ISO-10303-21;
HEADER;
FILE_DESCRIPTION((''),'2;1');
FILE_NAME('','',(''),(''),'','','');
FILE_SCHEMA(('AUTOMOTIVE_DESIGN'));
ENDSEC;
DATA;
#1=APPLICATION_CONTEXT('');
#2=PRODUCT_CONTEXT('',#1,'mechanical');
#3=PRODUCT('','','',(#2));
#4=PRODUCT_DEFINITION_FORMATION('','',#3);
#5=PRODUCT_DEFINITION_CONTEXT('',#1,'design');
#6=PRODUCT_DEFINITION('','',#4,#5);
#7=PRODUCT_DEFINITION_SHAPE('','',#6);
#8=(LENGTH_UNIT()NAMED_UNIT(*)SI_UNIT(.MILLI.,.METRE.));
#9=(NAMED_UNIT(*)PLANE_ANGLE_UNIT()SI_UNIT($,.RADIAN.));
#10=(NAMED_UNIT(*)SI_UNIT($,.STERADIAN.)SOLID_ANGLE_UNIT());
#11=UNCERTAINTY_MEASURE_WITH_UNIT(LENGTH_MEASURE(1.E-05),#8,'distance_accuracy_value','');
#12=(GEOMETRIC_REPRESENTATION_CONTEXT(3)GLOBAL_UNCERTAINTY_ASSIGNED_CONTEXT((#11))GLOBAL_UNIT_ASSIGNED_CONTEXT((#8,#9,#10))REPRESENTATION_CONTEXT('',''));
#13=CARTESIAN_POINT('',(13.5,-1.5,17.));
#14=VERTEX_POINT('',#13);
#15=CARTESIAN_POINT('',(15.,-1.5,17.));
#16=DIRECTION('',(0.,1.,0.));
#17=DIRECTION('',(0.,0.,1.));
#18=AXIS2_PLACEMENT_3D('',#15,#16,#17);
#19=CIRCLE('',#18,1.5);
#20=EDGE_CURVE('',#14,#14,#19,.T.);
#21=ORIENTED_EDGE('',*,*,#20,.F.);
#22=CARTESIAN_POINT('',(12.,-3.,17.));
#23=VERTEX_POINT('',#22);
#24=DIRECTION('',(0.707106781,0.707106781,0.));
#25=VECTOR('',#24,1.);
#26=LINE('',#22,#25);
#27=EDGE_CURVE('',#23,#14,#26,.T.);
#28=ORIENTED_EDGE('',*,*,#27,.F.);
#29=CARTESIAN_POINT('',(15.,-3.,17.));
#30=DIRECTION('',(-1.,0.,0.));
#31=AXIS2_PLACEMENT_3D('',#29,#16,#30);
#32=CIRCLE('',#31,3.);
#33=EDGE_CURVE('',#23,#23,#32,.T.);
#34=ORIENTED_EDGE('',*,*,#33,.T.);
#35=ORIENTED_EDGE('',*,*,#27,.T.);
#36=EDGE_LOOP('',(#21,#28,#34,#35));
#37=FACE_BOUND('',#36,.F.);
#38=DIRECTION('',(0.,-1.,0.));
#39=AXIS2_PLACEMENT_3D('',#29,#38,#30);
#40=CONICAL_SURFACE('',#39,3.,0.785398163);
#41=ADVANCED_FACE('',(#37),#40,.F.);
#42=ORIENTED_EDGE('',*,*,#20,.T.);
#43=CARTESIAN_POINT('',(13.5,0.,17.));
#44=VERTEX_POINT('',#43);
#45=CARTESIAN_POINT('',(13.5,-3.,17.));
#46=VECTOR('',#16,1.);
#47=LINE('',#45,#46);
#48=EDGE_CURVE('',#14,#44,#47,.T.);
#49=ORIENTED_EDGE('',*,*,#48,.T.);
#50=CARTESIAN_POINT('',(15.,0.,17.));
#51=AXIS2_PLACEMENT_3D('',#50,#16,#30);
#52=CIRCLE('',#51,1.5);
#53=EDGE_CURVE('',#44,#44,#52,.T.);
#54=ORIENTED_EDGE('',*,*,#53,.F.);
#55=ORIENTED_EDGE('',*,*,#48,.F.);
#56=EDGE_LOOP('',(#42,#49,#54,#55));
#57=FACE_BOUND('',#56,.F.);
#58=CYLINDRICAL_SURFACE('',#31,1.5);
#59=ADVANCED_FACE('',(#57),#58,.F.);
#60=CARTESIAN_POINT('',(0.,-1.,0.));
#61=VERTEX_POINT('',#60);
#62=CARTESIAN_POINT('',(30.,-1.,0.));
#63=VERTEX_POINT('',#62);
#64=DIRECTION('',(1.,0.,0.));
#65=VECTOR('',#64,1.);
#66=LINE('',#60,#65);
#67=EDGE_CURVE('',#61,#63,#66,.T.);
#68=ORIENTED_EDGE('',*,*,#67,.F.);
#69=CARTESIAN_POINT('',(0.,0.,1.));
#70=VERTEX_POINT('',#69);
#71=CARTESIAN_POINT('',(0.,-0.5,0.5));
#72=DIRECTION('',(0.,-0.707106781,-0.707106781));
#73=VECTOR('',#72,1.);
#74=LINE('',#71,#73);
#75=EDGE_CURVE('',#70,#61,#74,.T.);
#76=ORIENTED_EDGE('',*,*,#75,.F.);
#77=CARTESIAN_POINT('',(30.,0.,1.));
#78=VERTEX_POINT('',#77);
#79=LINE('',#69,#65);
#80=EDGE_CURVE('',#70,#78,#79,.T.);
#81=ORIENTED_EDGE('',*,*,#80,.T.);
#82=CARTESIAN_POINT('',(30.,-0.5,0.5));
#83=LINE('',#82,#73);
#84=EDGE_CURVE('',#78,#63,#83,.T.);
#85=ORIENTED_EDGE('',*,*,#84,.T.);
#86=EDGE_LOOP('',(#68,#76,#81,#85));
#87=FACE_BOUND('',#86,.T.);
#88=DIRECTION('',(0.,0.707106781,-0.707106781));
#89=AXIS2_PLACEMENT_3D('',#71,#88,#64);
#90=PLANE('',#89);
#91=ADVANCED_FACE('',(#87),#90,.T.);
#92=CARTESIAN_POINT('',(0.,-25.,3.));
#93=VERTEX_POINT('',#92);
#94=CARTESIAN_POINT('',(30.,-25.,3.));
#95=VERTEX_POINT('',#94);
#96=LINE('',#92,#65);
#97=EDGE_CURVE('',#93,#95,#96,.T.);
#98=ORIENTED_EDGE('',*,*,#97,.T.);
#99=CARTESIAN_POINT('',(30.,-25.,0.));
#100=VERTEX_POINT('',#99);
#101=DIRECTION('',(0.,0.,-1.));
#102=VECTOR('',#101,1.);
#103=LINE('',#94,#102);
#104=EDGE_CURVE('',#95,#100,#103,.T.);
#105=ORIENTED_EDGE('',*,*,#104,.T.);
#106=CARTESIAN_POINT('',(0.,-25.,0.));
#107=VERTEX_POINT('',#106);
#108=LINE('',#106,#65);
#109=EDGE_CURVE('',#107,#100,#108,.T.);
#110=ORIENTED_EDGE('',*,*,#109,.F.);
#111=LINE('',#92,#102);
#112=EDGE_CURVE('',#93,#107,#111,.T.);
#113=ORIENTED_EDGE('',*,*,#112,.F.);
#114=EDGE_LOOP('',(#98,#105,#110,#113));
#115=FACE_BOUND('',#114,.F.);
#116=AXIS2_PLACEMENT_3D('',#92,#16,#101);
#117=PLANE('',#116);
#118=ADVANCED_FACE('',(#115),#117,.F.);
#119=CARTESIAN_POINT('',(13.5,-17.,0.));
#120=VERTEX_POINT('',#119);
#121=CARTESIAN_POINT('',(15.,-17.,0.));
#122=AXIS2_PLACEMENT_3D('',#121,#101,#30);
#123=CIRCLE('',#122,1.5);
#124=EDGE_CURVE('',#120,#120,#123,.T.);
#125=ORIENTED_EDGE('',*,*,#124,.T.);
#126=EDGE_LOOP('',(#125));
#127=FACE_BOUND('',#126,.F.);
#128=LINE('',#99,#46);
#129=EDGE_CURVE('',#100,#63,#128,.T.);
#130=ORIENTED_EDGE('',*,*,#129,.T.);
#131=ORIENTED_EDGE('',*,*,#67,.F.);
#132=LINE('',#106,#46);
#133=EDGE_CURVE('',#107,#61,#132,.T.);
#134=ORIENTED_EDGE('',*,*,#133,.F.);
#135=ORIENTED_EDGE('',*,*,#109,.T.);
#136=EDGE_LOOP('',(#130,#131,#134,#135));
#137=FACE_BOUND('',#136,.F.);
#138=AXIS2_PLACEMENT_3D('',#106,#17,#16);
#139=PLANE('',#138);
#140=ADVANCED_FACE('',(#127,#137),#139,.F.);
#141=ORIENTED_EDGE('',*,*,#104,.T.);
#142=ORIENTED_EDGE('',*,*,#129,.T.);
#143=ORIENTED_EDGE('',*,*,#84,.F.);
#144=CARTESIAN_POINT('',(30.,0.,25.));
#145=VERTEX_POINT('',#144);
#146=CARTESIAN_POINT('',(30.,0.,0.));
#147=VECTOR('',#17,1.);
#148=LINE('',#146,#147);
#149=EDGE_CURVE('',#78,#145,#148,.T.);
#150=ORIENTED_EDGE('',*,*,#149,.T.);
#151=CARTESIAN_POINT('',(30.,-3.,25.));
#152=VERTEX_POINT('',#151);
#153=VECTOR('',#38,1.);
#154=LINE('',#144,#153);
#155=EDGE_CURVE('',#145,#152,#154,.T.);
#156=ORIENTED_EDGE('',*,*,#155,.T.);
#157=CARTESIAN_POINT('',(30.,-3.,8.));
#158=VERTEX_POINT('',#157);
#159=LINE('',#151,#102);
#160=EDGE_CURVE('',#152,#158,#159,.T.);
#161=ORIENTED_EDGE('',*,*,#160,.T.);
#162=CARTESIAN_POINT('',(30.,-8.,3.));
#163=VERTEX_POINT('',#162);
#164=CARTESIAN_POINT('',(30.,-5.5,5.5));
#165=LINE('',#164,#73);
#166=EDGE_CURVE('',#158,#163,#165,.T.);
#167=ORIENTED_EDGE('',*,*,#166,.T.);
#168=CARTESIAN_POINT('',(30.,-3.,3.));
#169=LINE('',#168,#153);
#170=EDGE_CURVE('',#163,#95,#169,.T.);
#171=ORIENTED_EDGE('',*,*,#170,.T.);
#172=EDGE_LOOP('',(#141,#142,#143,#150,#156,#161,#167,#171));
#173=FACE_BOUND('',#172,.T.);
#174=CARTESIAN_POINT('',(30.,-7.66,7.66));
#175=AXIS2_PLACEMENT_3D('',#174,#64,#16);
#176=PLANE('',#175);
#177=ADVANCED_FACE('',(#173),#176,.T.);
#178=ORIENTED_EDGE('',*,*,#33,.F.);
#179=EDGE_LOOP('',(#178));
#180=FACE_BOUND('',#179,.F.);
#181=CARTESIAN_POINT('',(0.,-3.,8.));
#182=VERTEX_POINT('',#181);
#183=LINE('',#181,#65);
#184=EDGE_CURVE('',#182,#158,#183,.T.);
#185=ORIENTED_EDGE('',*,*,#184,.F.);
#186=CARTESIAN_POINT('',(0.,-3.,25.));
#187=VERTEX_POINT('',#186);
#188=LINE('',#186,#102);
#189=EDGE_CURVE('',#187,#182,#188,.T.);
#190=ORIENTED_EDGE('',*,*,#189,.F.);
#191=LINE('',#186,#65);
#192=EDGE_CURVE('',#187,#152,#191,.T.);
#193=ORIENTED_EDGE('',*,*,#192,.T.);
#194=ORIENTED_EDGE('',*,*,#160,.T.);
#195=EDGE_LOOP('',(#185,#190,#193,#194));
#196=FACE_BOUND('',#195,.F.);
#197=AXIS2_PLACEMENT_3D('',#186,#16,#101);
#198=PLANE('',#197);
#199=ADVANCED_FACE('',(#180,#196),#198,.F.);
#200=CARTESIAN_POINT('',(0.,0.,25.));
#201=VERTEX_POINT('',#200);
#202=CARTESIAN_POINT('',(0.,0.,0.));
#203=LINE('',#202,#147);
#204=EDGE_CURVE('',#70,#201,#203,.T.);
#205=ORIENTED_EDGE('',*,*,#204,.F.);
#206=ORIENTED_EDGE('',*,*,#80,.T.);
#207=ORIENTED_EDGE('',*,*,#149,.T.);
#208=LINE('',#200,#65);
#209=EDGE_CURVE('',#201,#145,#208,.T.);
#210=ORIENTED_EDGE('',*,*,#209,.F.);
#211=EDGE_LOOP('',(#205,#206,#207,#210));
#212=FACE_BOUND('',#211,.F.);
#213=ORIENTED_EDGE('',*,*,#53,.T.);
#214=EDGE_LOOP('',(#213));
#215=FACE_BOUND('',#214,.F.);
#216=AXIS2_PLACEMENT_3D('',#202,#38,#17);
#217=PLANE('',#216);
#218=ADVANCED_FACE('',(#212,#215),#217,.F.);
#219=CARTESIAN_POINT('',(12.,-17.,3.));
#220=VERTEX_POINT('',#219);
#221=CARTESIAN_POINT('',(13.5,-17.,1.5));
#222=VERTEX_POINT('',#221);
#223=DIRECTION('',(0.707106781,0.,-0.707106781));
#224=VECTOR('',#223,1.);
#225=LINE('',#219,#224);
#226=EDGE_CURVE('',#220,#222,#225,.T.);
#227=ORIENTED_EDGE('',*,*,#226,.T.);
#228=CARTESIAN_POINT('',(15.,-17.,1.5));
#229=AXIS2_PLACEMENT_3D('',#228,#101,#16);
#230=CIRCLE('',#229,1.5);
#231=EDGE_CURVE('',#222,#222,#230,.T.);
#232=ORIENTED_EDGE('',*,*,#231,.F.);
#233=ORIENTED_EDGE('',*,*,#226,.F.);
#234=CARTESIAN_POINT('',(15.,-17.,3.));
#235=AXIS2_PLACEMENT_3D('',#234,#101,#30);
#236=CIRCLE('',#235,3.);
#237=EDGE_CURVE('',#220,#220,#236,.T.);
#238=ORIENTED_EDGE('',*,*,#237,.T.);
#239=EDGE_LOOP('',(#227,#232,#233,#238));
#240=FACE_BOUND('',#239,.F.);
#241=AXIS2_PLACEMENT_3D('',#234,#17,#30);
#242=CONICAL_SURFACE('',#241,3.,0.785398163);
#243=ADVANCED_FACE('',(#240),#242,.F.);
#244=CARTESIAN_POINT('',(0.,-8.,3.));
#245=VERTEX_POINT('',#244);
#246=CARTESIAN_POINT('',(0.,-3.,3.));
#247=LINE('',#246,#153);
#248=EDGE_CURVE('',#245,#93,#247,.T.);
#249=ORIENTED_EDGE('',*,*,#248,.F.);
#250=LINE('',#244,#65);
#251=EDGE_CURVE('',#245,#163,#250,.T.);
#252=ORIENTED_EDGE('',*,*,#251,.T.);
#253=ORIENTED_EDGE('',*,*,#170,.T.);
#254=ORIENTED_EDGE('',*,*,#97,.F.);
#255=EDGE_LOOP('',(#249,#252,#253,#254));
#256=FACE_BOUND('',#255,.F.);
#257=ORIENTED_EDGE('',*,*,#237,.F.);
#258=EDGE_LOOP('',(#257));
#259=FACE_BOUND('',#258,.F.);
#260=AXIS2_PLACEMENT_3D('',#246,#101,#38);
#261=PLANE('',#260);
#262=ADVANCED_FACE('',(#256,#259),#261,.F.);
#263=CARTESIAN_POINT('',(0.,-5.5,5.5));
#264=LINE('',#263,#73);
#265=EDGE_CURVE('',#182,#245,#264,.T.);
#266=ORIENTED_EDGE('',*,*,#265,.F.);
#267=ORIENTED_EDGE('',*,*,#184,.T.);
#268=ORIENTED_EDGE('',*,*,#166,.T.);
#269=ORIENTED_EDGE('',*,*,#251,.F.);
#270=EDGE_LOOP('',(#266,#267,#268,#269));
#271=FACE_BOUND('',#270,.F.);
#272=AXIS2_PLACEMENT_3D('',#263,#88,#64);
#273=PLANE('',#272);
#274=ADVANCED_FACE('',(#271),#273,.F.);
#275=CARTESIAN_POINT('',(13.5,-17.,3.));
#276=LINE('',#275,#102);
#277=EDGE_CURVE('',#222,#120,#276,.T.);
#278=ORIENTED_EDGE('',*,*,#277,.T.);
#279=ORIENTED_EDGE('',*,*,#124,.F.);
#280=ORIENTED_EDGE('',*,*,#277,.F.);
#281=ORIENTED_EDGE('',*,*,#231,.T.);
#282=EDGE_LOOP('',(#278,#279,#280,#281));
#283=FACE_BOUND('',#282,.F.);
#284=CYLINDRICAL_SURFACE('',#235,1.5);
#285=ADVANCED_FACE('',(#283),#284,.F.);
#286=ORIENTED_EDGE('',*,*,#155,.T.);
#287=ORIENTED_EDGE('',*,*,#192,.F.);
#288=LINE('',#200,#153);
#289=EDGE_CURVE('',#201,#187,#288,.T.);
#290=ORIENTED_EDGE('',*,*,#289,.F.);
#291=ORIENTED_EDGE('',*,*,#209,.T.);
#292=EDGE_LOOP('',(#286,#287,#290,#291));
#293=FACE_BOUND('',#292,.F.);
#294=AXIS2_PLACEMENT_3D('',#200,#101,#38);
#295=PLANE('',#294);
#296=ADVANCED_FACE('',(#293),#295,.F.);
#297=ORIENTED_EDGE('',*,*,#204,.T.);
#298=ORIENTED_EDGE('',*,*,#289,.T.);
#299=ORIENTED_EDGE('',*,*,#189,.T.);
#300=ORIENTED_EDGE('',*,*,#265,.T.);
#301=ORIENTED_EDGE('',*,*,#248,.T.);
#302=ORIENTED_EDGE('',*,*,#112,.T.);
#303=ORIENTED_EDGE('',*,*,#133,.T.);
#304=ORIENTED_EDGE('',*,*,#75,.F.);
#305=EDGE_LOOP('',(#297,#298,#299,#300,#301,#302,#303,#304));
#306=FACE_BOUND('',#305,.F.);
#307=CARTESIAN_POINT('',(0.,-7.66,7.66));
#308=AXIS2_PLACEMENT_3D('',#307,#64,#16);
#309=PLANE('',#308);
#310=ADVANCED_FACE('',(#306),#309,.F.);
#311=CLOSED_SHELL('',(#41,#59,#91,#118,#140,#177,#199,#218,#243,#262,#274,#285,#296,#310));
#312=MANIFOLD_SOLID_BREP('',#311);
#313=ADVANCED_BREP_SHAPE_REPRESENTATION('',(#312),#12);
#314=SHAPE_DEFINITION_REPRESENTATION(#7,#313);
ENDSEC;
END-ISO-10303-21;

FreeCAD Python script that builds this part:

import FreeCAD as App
import Part
import Sketcher

V = App.Vector


def edges_at(feature, points):
    """Names of the edges that pass closest to the given points."""
    edges = feature.Shape.Edges
    near = lambda p: min(range(len(edges)), key=lambda i: edges[i].distToShape(Part.Vertex(*p))[0])
    return sorted({f"Edge{near(p) + 1}" for p in points})


def add_polygon(sketch, points):
    """Adds a closed chain of lines whose ends are joined by coincident constraints."""
    first, n = sketch.GeometryCount, len(points)
    for a, b in zip(points, points[1:] + points[:1]):
        sketch.addGeometry(Part.LineSegment(App.Vector(*a, 0), App.Vector(*b, 0)), False)
    for i in range(n):
        sketch.addConstraint(Sketcher.Constraint("Coincident", first + i, 2, first + (i + 1) % n, 1))

doc = App.newDocument("Part")
body = doc.addObject("PartDesign::Body", "Body")

# Sketch on YZ plane
sketch1 = doc.addObject("Sketcher::SketchObject", "Sketch")
body.addObject(sketch1)
sketch1.AttachmentSupport = (doc.YZ_Plane, [""])
sketch1.MapMode = "FlatFace"
add_polygon(sketch1, [(-25, 0), (0, 0), (0, 25), (-3, 25), (-3, 3), (-25, 3)])  # lines 0-5
sketch1.addConstraint(Sketcher.Constraint("Horizontal", 0))
sketch1.addConstraint(Sketcher.Constraint("Vertical", 1))
sketch1.addConstraint(Sketcher.Constraint("Horizontal", 2))
sketch1.addConstraint(Sketcher.Constraint("Vertical", 3))
sketch1.addConstraint(Sketcher.Constraint("Horizontal", 4))
sketch1.addConstraint(Sketcher.Constraint("Vertical", 5))
sketch1.addConstraint(Sketcher.Constraint("Coincident", 0, 2, -1, 1))
sketch1.addConstraint(Sketcher.Constraint("Equal", 0, 1))
sketch1.addConstraint(Sketcher.Constraint("Equal", 4, 3))
sketch1.addConstraint(Sketcher.Constraint("DistanceX", 0, 1, 0, 2, 25.0))
sketch1.addConstraint(Sketcher.Constraint("DistanceX", 2, 2, 2, 1, 3.0))
pad1 = doc.addObject("PartDesign::Pad", "Pad")
body.addObject(pad1)
pad1.Profile = sketch1
pad1.Length = 30
doc.recompute()

chamfer = doc.addObject("PartDesign::Chamfer", "Chamfer")
body.addObject(chamfer)
chamfer.Base = (pad1, edges_at(pad1, [(15, -3, 3)]))
chamfer.Size = 5
doc.recompute()

chamfer2 = doc.addObject("PartDesign::Chamfer", "Chamfer001")
body.addObject(chamfer2)
chamfer2.Base = (chamfer, edges_at(chamfer, [(15, 0, 0)]))
chamfer2.Size = 1

# Sketch on XZ plane
sketch2 = doc.addObject("Sketcher::SketchObject", "Sketch001")
body.addObject(sketch2)
sketch2.AttachmentSupport = (doc.XZ_Plane, [""])
sketch2.MapMode = "FlatFace"
sketch2.AttachmentOffset = App.Placement(V(0, 0, 3), App.Rotation())
sketch2.addGeometry(Part.Circle(V(15, 17, 0), V(0, 0, 1), 1.5), False)
sketch2.addConstraint(Sketcher.Constraint("Diameter", 0, 3.0))
sketch2.addConstraint(Sketcher.Constraint("DistanceX", -1, 1, 0, 3, 15.0))
sketch2.addConstraint(Sketcher.Constraint("DistanceY", -1, 1, 0, 3, 17.0))
doc.recompute()
hole = doc.addObject("PartDesign::Hole", "Hole")
body.addObject(hole)
hole.Profile = sketch2
hole.ThreadType = "None"
hole.Diameter = 3
hole.DepthType = "ThroughAll"
hole.HoleCutType = "Countersink"
hole.HoleCutDiameter = 6
hole.HoleCutCountersinkAngle = 90

# Sketch on XY plane
sketch3 = doc.addObject("Sketcher::SketchObject", "Sketch002")
body.addObject(sketch3)
sketch3.AttachmentSupport = (doc.XY_Plane, [""])
sketch3.MapMode = "FlatFace"
sketch3.AttachmentOffset = App.Placement(V(0, 0, 3), App.Rotation())
sketch3.addGeometry(Part.Circle(V(15, -17, 0), V(0, 0, 1), 1.5), False)
sketch3.addConstraint(Sketcher.Constraint("Diameter", 0, 3.0))
sketch3.addConstraint(Sketcher.Constraint("DistanceX", -1, 1, 0, 3, 15.0))
sketch3.addConstraint(Sketcher.Constraint("DistanceY", 0, 3, -1, 1, 17.0))
doc.recompute()
hole2 = doc.addObject("PartDesign::Hole", "Hole001")
body.addObject(hole2)
hole2.Profile = sketch3
hole2.ThreadType = "None"
hole2.Diameter = 3
hole2.DepthType = "ThroughAll"
hole2.HoleCutType = "Countersink"
hole2.HoleCutDiameter = 6
hole2.HoleCutCountersinkAngle = 90

doc.recompute()
